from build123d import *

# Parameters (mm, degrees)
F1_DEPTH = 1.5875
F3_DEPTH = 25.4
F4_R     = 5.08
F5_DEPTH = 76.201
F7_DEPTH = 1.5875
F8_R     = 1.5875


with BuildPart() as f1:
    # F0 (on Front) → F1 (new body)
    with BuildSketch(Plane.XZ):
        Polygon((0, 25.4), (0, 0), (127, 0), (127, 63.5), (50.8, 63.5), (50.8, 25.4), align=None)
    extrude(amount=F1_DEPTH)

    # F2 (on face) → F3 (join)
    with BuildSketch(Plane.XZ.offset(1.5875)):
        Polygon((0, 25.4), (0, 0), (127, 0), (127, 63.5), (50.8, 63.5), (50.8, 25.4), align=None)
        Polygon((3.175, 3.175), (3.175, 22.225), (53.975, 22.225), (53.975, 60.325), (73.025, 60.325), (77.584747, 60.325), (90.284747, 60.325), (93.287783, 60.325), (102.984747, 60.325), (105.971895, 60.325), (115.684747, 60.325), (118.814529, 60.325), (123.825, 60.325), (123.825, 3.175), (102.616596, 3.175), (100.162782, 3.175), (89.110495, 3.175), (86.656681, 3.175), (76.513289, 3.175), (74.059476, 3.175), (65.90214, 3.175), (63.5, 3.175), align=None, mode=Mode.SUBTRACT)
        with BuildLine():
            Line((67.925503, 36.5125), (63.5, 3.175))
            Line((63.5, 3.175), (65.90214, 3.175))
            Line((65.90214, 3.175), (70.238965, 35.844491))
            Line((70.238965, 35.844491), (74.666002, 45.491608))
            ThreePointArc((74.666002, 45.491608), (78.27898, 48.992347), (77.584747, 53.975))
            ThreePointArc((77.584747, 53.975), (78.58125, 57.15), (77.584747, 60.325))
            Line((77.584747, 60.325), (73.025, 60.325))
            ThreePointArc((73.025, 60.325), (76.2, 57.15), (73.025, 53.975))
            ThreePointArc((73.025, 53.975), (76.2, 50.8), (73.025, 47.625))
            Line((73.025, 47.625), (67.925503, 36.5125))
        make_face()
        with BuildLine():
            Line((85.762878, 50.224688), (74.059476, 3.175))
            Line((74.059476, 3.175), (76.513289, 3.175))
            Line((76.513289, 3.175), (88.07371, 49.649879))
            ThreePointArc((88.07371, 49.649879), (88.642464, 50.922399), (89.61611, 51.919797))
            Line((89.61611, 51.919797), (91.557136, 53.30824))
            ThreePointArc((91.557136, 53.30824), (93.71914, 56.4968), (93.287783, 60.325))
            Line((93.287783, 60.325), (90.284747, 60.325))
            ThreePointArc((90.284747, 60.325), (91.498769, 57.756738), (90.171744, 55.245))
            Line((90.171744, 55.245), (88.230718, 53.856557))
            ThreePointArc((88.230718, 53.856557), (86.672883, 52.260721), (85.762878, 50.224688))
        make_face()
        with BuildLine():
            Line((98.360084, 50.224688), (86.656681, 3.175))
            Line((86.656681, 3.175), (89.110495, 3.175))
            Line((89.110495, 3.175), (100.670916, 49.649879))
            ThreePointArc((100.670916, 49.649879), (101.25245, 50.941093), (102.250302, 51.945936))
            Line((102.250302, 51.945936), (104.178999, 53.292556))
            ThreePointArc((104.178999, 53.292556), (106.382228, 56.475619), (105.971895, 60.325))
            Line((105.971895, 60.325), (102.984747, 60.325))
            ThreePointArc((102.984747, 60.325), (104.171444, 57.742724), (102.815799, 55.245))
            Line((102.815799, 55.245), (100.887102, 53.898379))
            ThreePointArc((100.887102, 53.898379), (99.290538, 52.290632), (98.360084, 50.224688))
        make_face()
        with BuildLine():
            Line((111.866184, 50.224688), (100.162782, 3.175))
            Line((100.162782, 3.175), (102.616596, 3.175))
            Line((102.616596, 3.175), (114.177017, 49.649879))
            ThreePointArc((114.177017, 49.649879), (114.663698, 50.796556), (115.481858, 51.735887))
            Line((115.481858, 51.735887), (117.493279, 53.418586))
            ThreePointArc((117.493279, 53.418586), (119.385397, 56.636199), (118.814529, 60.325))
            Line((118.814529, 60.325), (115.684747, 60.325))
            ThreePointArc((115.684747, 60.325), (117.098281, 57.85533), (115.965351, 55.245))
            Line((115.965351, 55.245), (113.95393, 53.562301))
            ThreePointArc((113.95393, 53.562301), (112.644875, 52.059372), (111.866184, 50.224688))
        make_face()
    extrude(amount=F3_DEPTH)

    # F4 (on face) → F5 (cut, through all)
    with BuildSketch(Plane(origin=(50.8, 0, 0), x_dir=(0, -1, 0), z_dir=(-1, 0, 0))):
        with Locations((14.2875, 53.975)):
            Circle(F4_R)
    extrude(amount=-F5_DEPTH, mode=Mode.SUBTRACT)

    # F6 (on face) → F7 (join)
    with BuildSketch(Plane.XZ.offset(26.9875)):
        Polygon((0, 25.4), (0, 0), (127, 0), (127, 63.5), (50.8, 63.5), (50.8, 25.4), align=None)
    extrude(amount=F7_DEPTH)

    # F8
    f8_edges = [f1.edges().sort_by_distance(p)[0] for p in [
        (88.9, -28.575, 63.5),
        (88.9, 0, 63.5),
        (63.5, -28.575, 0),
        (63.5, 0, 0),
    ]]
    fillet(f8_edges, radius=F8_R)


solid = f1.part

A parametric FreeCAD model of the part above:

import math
import FreeCAD as App
import Part
import Sketcher
from FreeCAD import Vector
Q = App.Units.Quantity


def edges_at(feature, points):
    """Names of the edges that pass closest to the given points."""
    edges = feature.Shape.Edges
    near = lambda p: min(range(len(edges)), key=lambda i: edges[i].distToShape(Part.Vertex(*p))[0])
    return sorted({f"Edge{near(p) + 1}" for p in points})


def add_polygon(sketch, points):
    """Adds a closed chain of lines whose ends are joined by coincident constraints."""
    first, n = sketch.GeometryCount, len(points)
    for a, b in zip(points, points[1:] + points[:1]):
        sketch.addGeometry(Part.LineSegment(App.Vector(*a, 0), App.Vector(*b, 0)), False)
    for i in range(n):
        sketch.addConstraint(Sketcher.Constraint("Coincident", first + i, 2, first + (i + 1) % n, 1))

doc = App.newDocument("Part")
body = doc.addObject("PartDesign::Body", "Body")

sketch1 = body.newObject("Sketcher::SketchObject", "Sketch")
sketch1.AttachmentSupport = (doc.getObject("XZ_Plane"), [""])
sketch1.MapMode = "FlatFace"
add_polygon(sketch1, [(0, 25.4), (0, 0), (127, 0), (127, 63.5), (50.8, 63.5), (50.8, 25.4)])
sketch1.addConstraint(Sketcher.Constraint("Vertical", 0))
sketch1.addConstraint(Sketcher.Constraint("Horizontal", 1))
sketch1.addConstraint(Sketcher.Constraint("Vertical", 2))
sketch1.addConstraint(Sketcher.Constraint("Horizontal", 3))
sketch1.addConstraint(Sketcher.Constraint("Vertical", 4))
sketch1.addConstraint(Sketcher.Constraint("Horizontal", 5))
sketch1.addConstraint(Sketcher.Constraint("Coincident", 0, 2, -1, 1))
sketch1.addConstraint(Sketcher.Constraint("DistanceX", 1, 1, 1, 2, Q("5 in")))
sketch1.addConstraint(Sketcher.Constraint("DistanceX", 3, 2, 3, 1, Q("3 in")))
sketch1.addConstraint(Sketcher.Constraint("DistanceY", 0, 2, 0, 1, Q("1 in")))
sketch1.addConstraint(Sketcher.Constraint("DistanceY", 2, 1, 2, 2, Q("2.5 in")))
pad1 = body.newObject("PartDesign::Pad", "Pad")
pad1.Profile = sketch1
pad1.Length = Q("0.0625 in")

sketch2 = body.newObject("Sketcher::SketchObject", "Sketch001")
sketch2.AttachmentSupport = (doc.getObject("XZ_Plane"), [""])
sketch2.MapMode = "FlatFace"
sketch2.AttachmentOffset = App.Placement(Vector(0, 0, 0.0625 * 25.4), App.Rotation())
add_polygon(sketch2, [(0, 25.4), (0, 0), (127, 0), (127, 63.5), (50.8, 63.5), (50.8, 25.4)])
sketch2.addGeometry(Part.LineSegment(Vector(123.825, 3.175, 0), Vector(102.616596, 3.175, 0)), False)
sketch2.addGeometry(Part.LineSegment(Vector(102.616596, 3.175, 0), Vector(114.177017, 49.649879, 0)), False)
sketch2.addGeometry(Part.ArcOfCircle(Part.Circle(Vector(118.028401, 48.691865, 0), Vector(0, 0, 1), 3.968746), math.radians(129.914906), math.radians(166.031438)), False)
sketch2.addGeometry(Part.LineSegment(Vector(115.481858, 51.735887, 0), Vector(117.493279, 53.418586, 0)), False)
sketch2.addGeometry(Part.ArcOfCircle(Part.Circle(Vector(113.928113, 57.680219, 0), Vector(0, 0, 1), 5.556251), math.radians(-50.085069), math.radians(28.424542)), False)
sketch2.addGeometry(Part.LineSegment(Vector(118.814529, 60.325, 0), Vector(123.825, 60.325, 0)), False)
sketch2.addGeometry(Part.LineSegment(Vector(123.825, 60.325, 0), Vector(123.825, 3.175, 0)), False)
sketch2.addGeometry(Part.LineSegment(Vector(100.162782, 3.175, 0), Vector(89.110495, 3.175, 0)), False)
sketch2.addGeometry(Part.LineSegment(Vector(89.110495, 3.175, 0), Vector(100.670916, 49.649879, 0)), False)
sketch2.addGeometry(Part.ArcOfCircle(Part.Circle(Vector(104.52231, 48.691859, 0), Vector(0, 0, 1), 3.968757), math.radians(124.922877), math.radians(166.031384)), False)
sketch2.addGeometry(Part.LineSegment(Vector(102.250302, 51.945936, 0), Vector(104.178999, 53.292556, 0)), False)
sketch2.addGeometry(Part.ArcOfCircle(Part.Circle(Vector(100.998199, 57.848258, 0), Vector(0, 0, 1), 5.556249), math.radians(-55.077176), math.radians(26.471844)), False)
sketch2.addGeometry(Part.LineSegment(Vector(105.971895, 60.325, 0), Vector(115.684747, 60.325, 0)), False)
sketch2.addGeometry(Part.ArcOfCircle(Part.Circle(Vector(113.928113, 57.680219, 0), Vector(0, 0, 1), 3.175001), math.radians(-50.085058), math.radians(56.408327)), False)
sketch2.addGeometry(Part.LineSegment(Vector(115.965351, 55.245, 0), Vector(113.95393, 53.562301, 0)), False)
sketch2.addGeometry(Part.ArcOfCircle(Part.Circle(Vector(118.02841, 48.691859, 0), Vector(0, 0, 1), 6.350008), math.radians(129.914941), math.radians(166.031396)), False)
sketch2.addGeometry(Part.LineSegment(Vector(111.866184, 50.224688, 0), Vector(100.162782, 3.175, 0)), False)
sketch2.addGeometry(Part.LineSegment(Vector(86.656681, 3.175, 0), Vector(76.513289, 3.175, 0)), False)
sketch2.addGeometry(Part.LineSegment(Vector(76.513289, 3.175, 0), Vector(88.07371, 49.649879, 0)), False)
sketch2.addGeometry(Part.ArcOfCircle(Part.Circle(Vector(91.92511, 48.691855, 0), Vector(0, 0, 1), 3.968764), math.radians(125.57676), math.radians(166.031345)), False)
sketch2.addGeometry(Part.LineSegment(Vector(89.61611, 51.919797, 0), Vector(91.557136, 53.30824, 0)), False)
sketch2.addGeometry(Part.ArcOfCircle(Part.Circle(Vector(88.324554, 57.827347, 0), Vector(0, 0, 1), 5.55625), math.radians(-54.423315), math.radians(26.71298)), False)
sketch2.addGeometry(Part.LineSegment(Vector(93.287783, 60.325, 0), Vector(102.984747, 60.325, 0)), False)
sketch2.addGeometry(Part.ArcOfCircle(Part.Circle(Vector(100.998198, 57.848258, 0), Vector(0, 0, 1), 3.175), math.radians(-55.077169), math.radians(51.267547)), False)
sketch2.addGeometry(Part.LineSegment(Vector(102.815799, 55.245, 0), Vector(100.887102, 53.898379, 0)), False)
sketch2.addGeometry(Part.ArcOfCircle(Part.Circle(Vector(104.522295, 48.691869, 0), Vector(0, 0, 1), 6.34999), math.radians(124.922799), math.radians(166.03145)), False)
sketch2.addGeometry(Part.LineSegment(Vector(98.360084, 50.224688, 0), Vector(86.656681, 3.175, 0)), False)
sketch2.addGeometry(Part.LineSegment(Vector(74.059476, 3.175, 0), Vector(65.90214, 3.175, 0)), False)
sketch2.addGeometry(Part.LineSegment(Vector(65.90214, 3.175, 0), Vector(70.238965, 35.844491, 0)), False)
sketch2.addGeometry(Part.LineSegment(Vector(70.238965, 35.844491, 0), Vector(74.666002, 45.491608, 0)), False)
sketch2.addGeometry(Part.ArcOfCircle(Part.Circle(Vector(73.025, 50.8, 0), Vector(0, 0, 1), 5.55625), math.radians(-72.821868), math.radians(34.8499)), False)
sketch2.addGeometry(Part.ArcOfCircle(Part.Circle(Vector(73.024998, 57.15, 0), Vector(0, 0, 1), 5.556252), math.radians(-34.849891), math.radians(34.849891)), False)
sketch2.addGeometry(Part.LineSegment(Vector(77.584747, 60.325, 0), Vector(90.284747, 60.325, 0)), False)
sketch2.addGeometry(Part.ArcOfCircle(Part.Circle(Vector(88.324554, 57.827347, 0), Vector(0, 0, 1), 3.175), math.radians(-54.423311), math.radians(51.874678)), False)
sketch2.addGeometry(Part.LineSegment(Vector(90.171744, 55.245, 0), Vector(88.230718, 53.856557, 0)), False)
sketch2.addGeometry(Part.ArcOfCircle(Part.Circle(Vector(91.925096, 48.691864, 0), Vector(0, 0, 1), 6.349998), math.radians(125.576678), math.radians(166.03143)), False)
sketch2.addGeometry(Part.LineSegment(Vector(85.762878, 50.224688, 0), Vector(74.059476, 3.175, 0)), False)
sketch2.addGeometry(Part.LineSegment(Vector(63.5, 3.175, 0), Vector(3.175, 3.175, 0)), False)
sketch2.addGeometry(Part.LineSegment(Vector(3.175, 3.175, 0), Vector(3.175, 22.225, 0)), False)
sketch2.addGeometry(Part.LineSegment(Vector(3.175, 22.225, 0), Vector(53.975, 22.225, 0)), False)
sketch2.addGeometry(Part.LineSegment(Vector(53.975, 22.225, 0), Vector(53.975, 60.325, 0)), False)
sketch2.addGeometry(Part.LineSegment(Vector(53.975, 60.325, 0), Vector(73.025, 60.325, 0)), False)
sketch2.addGeometry(Part.ArcOfCircle(Part.Circle(Vector(73.025, 57.15, 0), Vector(0, 0, 1), 3.175), math.radians(-90), math.radians(90)), False)
sketch2.addGeometry(Part.ArcOfCircle(Part.Circle(Vector(73.025, 50.8, 0), Vector(0, 0, 1), 3.175), math.radians(-90), math.radians(90)), False)
sketch2.addGeometry(Part.LineSegment(Vector(73.025, 47.625, 0), Vector(67.925503, 36.5125, 0)), False)
sketch2.addGeometry(Part.LineSegment(Vector(67.925503, 36.5125, 0), Vector(63.5, 3.175, 0)), False)
sketch2.addConstraint(Sketcher.Constraint("Coincident", 6, 2, 7, 1))
sketch2.addConstraint(Sketcher.Constraint("Tangent", 7, 2, 8, 2))
sketch2.addConstraint(Sketcher.Constraint("Tangent", 8, 1, 9, 1))
sketch2.addConstraint(Sketcher.Constraint("Tangent", 9, 2, 10, 1))
sketch2.addConstraint(Sketcher.Constraint("Coincident", 10, 2, 11, 1))
sketch2.addConstraint(Sketcher.Constraint("Coincident", 11, 2, 12, 1))
sketch2.addConstraint(Sketcher.Constraint("Coincident", 12, 2, 6, 1))
sketch2.addConstraint(Sketcher.Constraint("Coincident", 13, 2, 14, 1))
sketch2.addConstraint(Sketcher.Constraint("Tangent", 14, 2, 15, 2))
sketch2.addConstraint(Sketcher.Constraint("Tangent", 15, 1, 16, 1))
sketch2.addConstraint(Sketcher.Constraint("Tangent", 16, 2, 17, 1))
sketch2.addConstraint(Sketcher.Constraint("Coincident", 17, 2, 18, 1))
sketch2.addConstraint(Sketcher.Constraint("Coincident", 18, 2, 19, 2))
sketch2.addConstraint(Sketcher.Constraint("Tangent", 19, 1, 20, 1))
sketch2.addConstraint(Sketcher.Constraint("Tangent", 20, 2, 21, 1))
sketch2.addConstraint(Sketcher.Constraint("Tangent", 21, 2, 22, 1))
sketch2.addConstraint(Sketcher.Constraint("Coincident", 22, 2, 13, 1))
sketch2.addConstraint(Sketcher.Constraint("Coincident", 23, 2, 24, 1))
sketch2.addConstraint(Sketcher.Constraint("Tangent", 24, 2, 25, 2))
sketch2.addConstraint(Sketcher.Constraint("Tangent", 25, 1, 26, 1))
sketch2.addConstraint(Sketcher.Constraint("Tangent", 26, 2, 27, 1))
sketch2.addConstraint(Sketcher.Constraint("Coincident", 27, 2, 28, 1))
sketch2.addConstraint(Sketcher.Constraint("Coincident", 28, 2, 29, 2))
sketch2.addConstraint(Sketcher.Constraint("Tangent", 29, 1, 30, 1))
sketch2.addConstraint(Sketcher.Constraint("Tangent", 30, 2, 31, 1))
sketch2.addConstraint(Sketcher.Constraint("Tangent", 31, 2, 32, 1))
sketch2.addConstraint(Sketcher.Constraint("Coincident", 32, 2, 23, 1))
sketch2.addConstraint(Sketcher.Constraint("Coincident", 33, 2, 34, 1))
sketch2.addConstraint(Sketcher.Constraint("Coincident", 34, 2, 35, 1))
sketch2.addConstraint(Sketcher.Constraint("Coincident", 35, 2, 36, 1))
sketch2.addConstraint(Sketcher.Constraint("Coincident", 36, 2, 37, 1))
sketch2.addConstraint(Sketcher.Constraint("Coincident", 37, 2, 38, 1))
sketch2.addConstraint(Sketcher.Constraint("Coincident", 38, 2, 39, 2))
sketch2.addConstraint(Sketcher.Constraint("Tangent", 39, 1, 40, 1))
sketch2.addConstraint(Sketcher.Constraint("Tangent", 40, 2, 41, 1))
sketch2.addConstraint(Sketcher.Constraint("Tangent", 41, 2, 42, 1))
sketch2.addConstraint(Sketcher.Constraint("Coincident", 42, 2, 33, 1))
sketch2.addConstraint(Sketcher.Constraint("Coincident", 43, 2, 44, 1))
sketch2.addConstraint(Sketcher.Constraint("Coincident", 44, 2, 45, 1))
sketch2.addConstraint(Sketcher.Constraint("Coincident", 45, 2, 46, 1))
sketch2.addConstraint(Sketcher.Constraint("Coincident", 46, 2, 47, 1))
sketch2.addConstraint(Sketcher.Constraint("Tangent", 47, 2, 48, 2))
sketch2.addConstraint(Sketcher.Constraint("Tangent", 48, 1, 49, 2))
sketch2.addConstraint(Sketcher.Constraint("Coincident", 49, 1, 50, 1))
sketch2.addConstraint(Sketcher.Constraint("Coincident", 50, 2, 51, 1))
sketch2.addConstraint(Sketcher.Constraint("Coincident", 51, 2, 43, 1))
sketch2.addConstraint(Sketcher.Constraint("Vertical", 0))
sketch2.addConstraint(Sketcher.Constraint("Horizontal", 1))
sketch2.addConstraint(Sketcher.Constraint("Vertical", 2))
sketch2.addConstraint(Sketcher.Constraint("Horizontal", 3))
sketch2.addConstraint(Sketcher.Constraint("Vertical", 4))
sketch2.addConstraint(Sketcher.Constraint("Horizontal", 5))
sketch2.addConstraint(Sketcher.Constraint("Horizontal", 6))
sketch2.addConstraint(Sketcher.Constraint("Horizontal", 11))
sketch2.addConstraint(Sketcher.Constraint("Vertical", 12))
sketch2.addConstraint(Sketcher.Constraint("Horizontal", 13))
sketch2.addConstraint(Sketcher.Constraint("Horizontal", 18))
sketch2.addConstraint(Sketcher.Constraint("Horizontal", 23))
sketch2.addConstraint(Sketcher.Constraint("Horizontal", 28))
sketch2.addConstraint(Sketcher.Constraint("Horizontal", 33))
sketch2.addConstraint(Sketcher.Constraint("Horizontal", 38))
sketch2.addConstraint(Sketcher.Constraint("Horizontal", 43))
sketch2.addConstraint(Sketcher.Constraint("Vertical", 44))
sketch2.addConstraint(Sketcher.Constraint("Horizontal", 45))
sketch2.addConstraint(Sketcher.Constraint("Vertical", 46))
sketch2.addConstraint(Sketcher.Constraint("Horizontal", 47))
sketch2.addConstraint(Sketcher.Constraint("Coincident", 0, 2, -1, 1))
sketch2.addConstraint(Sketcher.Constraint("Coincident", 19, 3, 10, 3))
sketch2.addConstraint(Sketcher.Constraint("Coincident", 29, 3, 17, 3))
sketch2.addConstraint(Sketcher.Constraint("Coincident", 39, 3, 27, 3))
sketch2.addConstraint(Sketcher.Constraint("Coincident", 48, 3, 37, 3))
sketch2.addConstraint(Sketcher.Constraint("Coincident", 49, 3, 36, 3))
sketch2.addConstraint(Sketcher.Constraint("Equal", 10, 17))
sketch2.addConstraint(Sketcher.Constraint("Equal", 17, 27))
sketch2.addConstraint(Sketcher.Constraint("Equal", 19, 29))
sketch2.addConstraint(Sketcher.Constraint("Equal", 27, 36))
sketch2.addConstraint(Sketcher.Constraint("Equal", 36, 37))
sketch2.addConstraint(Sketcher.Constraint("Equal", 29, 39))
sketch2.addConstraint(Sketcher.Constraint("Equal", 39, 48))
sketch2.addConstraint(Sketcher.Constraint("Equal", 48, 49))
sketch2.addConstraint(Sketcher.Constraint("Parallel", 7, 14))
sketch2.addConstraint(Sketcher.Constraint("Parallel", 9, 20))
sketch2.addConstraint(Sketcher.Constraint("Parallel", 14, 22))
sketch2.addConstraint(Sketcher.Constraint("Parallel", 22, 24))
sketch2.addConstraint(Sketcher.Constraint("Parallel", 16, 30))
sketch2.addConstraint(Sketcher.Constraint("Parallel", 24, 32))
sketch2.addConstraint(Sketcher.Constraint("Parallel", 26, 40))
sketch2.addConstraint(Sketcher.Constraint("Parallel", 32, 42))
sketch2.addConstraint(Sketcher.Constraint("Parallel", 35, 50))
sketch2.addConstraint(Sketcher.Constraint("Parallel", 34, 51))
sketch2.addConstraint(Sketcher.Constraint("Horizontal", 15, 3, 21, 3))
sketch2.addConstraint(Sketcher.Constraint("Horizontal", 8, 3, 41, 3))
sketch2.addConstraint(Sketcher.Constraint("Horizontal", 12, 2, 13, 2))
sketch2.addConstraint(Sketcher.Constraint("Horizontal", 7, 2, 14, 2))
sketch2.addConstraint(Sketcher.Constraint("Horizontal", 11, 2, 17, 2))
sketch2.addConstraint(Sketcher.Constraint("Horizontal", 22, 2, 23, 2))
sketch2.addConstraint(Sketcher.Constraint("Horizontal", 14, 2, 24, 2))
sketch2.addConstraint(Sketcher.Constraint("Horizontal", 18, 2, 27, 2))
sketch2.addConstraint(Sketcher.Constraint("Horizontal", 19, 1, 29, 1))
sketch2.addConstraint(Sketcher.Constraint("Horizontal", 21, 2, 31, 2))
sketch2.addConstraint(Sketcher.Constraint("Horizontal", 32, 2, 33, 2))
sketch2.addConstraint(Sketcher.Constraint("Horizontal", 28, 2, 37, 2))
sketch2.addConstraint(Sketcher.Constraint("Horizontal", 29, 1, 39, 1))
sketch2.addConstraint(Sketcher.Constraint("Horizontal", 31, 2, 41, 2))
sketch2.addConstraint(Sketcher.Constraint("Horizontal", 42, 2, 43, 2))
sketch2.addConstraint(Sketcher.Constraint("Horizontal", 38, 2, 46, 2))
sketch2.addConstraint(Sketcher.Constraint("Horizontal", 36, 2, 48, 1))
sketch2.addConstraint(Sketcher.Constraint("Vertical", 48, 1, 49, 1))
sketch2.addConstraint(Sketcher.Constraint("Equal", 5, 45))
sketch2.addConstraint(Sketcher.Constraint("Equal", 47, 44))
sketch2.addConstraint(Sketcher.Constraint("Equal", 4, 46))
sketch2.addConstraint(Sketcher.Constraint("Equal", 9, 20))
sketch2.addConstraint(Sketcher.Constraint("Equal", 16, 30))
sketch2.addConstraint(Sketcher.Constraint("Equal", 26, 40))
sketch2.addConstraint(Sketcher.Constraint("DistanceX", 1, 1, 1, 2, Q("5 in")))
sketch2.addConstraint(Sketcher.Constraint("DistanceX", 3, 2, 3, 1, Q("3 in")))
sketch2.addConstraint(Sketcher.Constraint("DistanceY", 0, 2, 0, 1, Q("1 in")))
sketch2.addConstraint(Sketcher.Constraint("Radius", 41, Q("0.2499999 in")))
sketch2.addConstraint(Sketcher.Constraint("DistanceX", 38, 1, 38, 2, Q("0.5 in")))
sketch2.addConstraint(Sketcher.Constraint("DistanceY", 2, 1, 2, 2, Q("2.5 in")))
sketch2.addConstraint(Sketcher.Constraint("DistanceY", -1, 1, 36, 3, Q("2 in")))
sketch2.addConstraint(Sketcher.Constraint("Radius", 8, Q("0.1562499 in")))
sketch2.addConstraint(Sketcher.Constraint("Radius", 10, Q("0.21875 in")))
sketch2.addConstraint(Sketcher.Constraint("Radius", 19, Q("0.125 in")))
sketch2.addConstraint(Sketcher.Constraint("DistanceX", 47, 1, 47, 2, Q("0.75 in")))
sketch2.addConstraint(Sketcher.Constraint("DistanceX", -1, 1, 51, 2, Q("2.5 in")))
sketch2.addConstraint(Sketcher.Constraint("DistanceX", 43, 2, 43, 1, Q("2.375 in")))
sketch2.addConstraint(Sketcher.Constraint("DistanceX", -1, 1, 11, 2, Q("4.875 in")))
sketch2.addConstraint(Sketcher.Constraint("DistanceY", -1, 1, 19, 1, Q("2.175 in")))
sketch2.addConstraint(Sketcher.Constraint("DistanceY", -1, 1, 50, 2, Q("1.4375 in")))
sketch2.addConstraint(Sketcher.Constraint("Distance", 35, Q("10.614402 mm")))
sketch2.addConstraint(Sketcher.Constraint("DistanceX", 11, 1, 11, 2, Q("5.010471 mm")))
sketch2.addConstraint(Sketcher.Constraint("DistanceX", 18, 1, 18, 2, Q("9.712852 mm")))
sketch2.addConstraint(Sketcher.Constraint("DistanceX", -1, 1, 8, 3, Q("118.028401 mm")))
sketch2.addConstraint(Sketcher.Constraint("DistanceX", -1, 1, 17, 3, Q("100.998199 mm")))
sketch2.addConstraint(Sketcher.Constraint("DistanceX", -1, 1, 16, 2, Q("104.178999 mm")))
sketch2.addConstraint(Sketcher.Constraint("DistanceX", 6, 2, 6, 1, Q("21.208404 mm")))
sketch2.addConstraint(Sketcher.Constraint("DistanceX", 23, 2, 23, 1, Q("10.143392 mm")))
sketch2.addConstraint(Sketcher.Constraint("DistanceX", 33, 2, 33, 1, Q("8.157336 mm")))
sketch2.addConstraint(Sketcher.Constraint("DistanceY", -1, 1, 34, 2, Q("35.844491 mm")))
pad2 = body.newObject("PartDesign::Pad", "Pad001")
pad2.Profile = sketch2
pad2.Length = Q("1 in")

sketch3 = body.newObject("Sketcher::SketchObject", "Sketch002")
sketch3.AttachmentSupport = (doc.getObject("YZ_Plane"), [""])
sketch3.MapMode = "FlatFace"
sketch3.AttachmentOffset = App.Placement(Vector(0, 0, 2 * 25.4), App.Rotation())
sketch3.addGeometry(Part.Circle(Vector(-14.2875, 53.975, 0), Vector(0, 0, 1), 5.08), False)
sketch3.addConstraint(Sketcher.Constraint("Diameter", 0, Q("0.4 in")))
sketch3.addConstraint(Sketcher.Constraint("DistanceX", 0, 3, -1, 1, Q("0.5625 in")))
sketch3.addConstraint(Sketcher.Constraint("DistanceY", -1, 1, 0, 3, Q("2.125 in")))
pocket1 = body.newObject("PartDesign::Pocket", "Pocket")
pocket1.Profile = sketch3
pocket1.Type = "ThroughAll"
pocket1.Reversed = True

sketch4 = body.newObject("Sketcher::SketchObject", "Sketch003")
sketch4.AttachmentSupport = (doc.getObject("XZ_Plane"), [""])
sketch4.MapMode = "FlatFace"
sketch4.AttachmentOffset = App.Placement(Vector(0, 0, 1.0625 * 25.4), App.Rotation())
add_polygon(sketch4, [(0, 25.4), (0, 0), (127, 0), (127, 63.5), (50.8, 63.5), (50.8, 25.4)])
sketch4.addConstraint(Sketcher.Constraint("Vertical", 0))
sketch4.addConstraint(Sketcher.Constraint("Horizontal", 1))
sketch4.addConstraint(Sketcher.Constraint("Vertical", 2))
sketch4.addConstraint(Sketcher.Constraint("Horizontal", 3))
sketch4.addConstraint(Sketcher.Constraint("Vertical", 4))
sketch4.addConstraint(Sketcher.Constraint("Horizontal", 5))
sketch4.addConstraint(Sketcher.Constraint("Coincident", 0, 2, -1, 1))
sketch4.addConstraint(Sketcher.Constraint("DistanceX", 1, 1, 1, 2, Q("5 in")))
sketch4.addConstraint(Sketcher.Constraint("DistanceX", 3, 2, 3, 1, Q("3 in")))
sketch4.addConstraint(Sketcher.Constraint("DistanceY", 0, 2, 0, 1, Q("1 in")))
sketch4.addConstraint(Sketcher.Constraint("DistanceY", 2, 1, 2, 2, Q("2.5 in")))
pad3 = body.newObject("PartDesign::Pad", "Pad002")
pad3.Profile = sketch4
pad3.Length = Q("0.0625 in")
doc.recompute()

fillet = body.newObject("PartDesign::Fillet", "Fillet")
fillet.Base = (pad3, edges_at(pad3, [
    (88.9, -28.575, 63.5),
    (88.9, 0, 63.5),
    (63.5, -28.575, 0),
    (63.5, 0, 0),
]))
fillet.Radius = Q("0.0625 in")

doc.recompute()
